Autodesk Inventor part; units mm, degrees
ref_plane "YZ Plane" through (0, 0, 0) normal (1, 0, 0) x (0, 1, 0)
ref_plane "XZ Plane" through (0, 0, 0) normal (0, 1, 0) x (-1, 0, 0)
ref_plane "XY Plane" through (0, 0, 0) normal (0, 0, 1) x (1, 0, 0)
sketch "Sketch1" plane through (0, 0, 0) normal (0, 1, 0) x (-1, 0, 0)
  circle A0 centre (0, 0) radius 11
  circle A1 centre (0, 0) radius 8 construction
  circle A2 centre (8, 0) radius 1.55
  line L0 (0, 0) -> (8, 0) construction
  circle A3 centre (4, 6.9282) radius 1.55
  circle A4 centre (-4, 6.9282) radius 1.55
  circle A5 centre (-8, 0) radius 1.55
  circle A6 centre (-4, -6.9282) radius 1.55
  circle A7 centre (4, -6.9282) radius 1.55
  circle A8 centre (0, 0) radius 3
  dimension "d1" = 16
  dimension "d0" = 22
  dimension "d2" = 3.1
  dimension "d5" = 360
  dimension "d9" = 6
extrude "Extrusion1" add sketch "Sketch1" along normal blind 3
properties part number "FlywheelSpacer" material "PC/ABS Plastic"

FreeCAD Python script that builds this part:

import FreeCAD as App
import Part
import Sketcher

V = App.Vector
Q = App.Units.Quantity

doc = App.newDocument("Part")
body = doc.addObject("PartDesign::Body", "Body")

sketch1 = body.newObject("Sketcher::SketchObject", "Sketch")
sketch1.AttachmentSupport = (doc.getObject("XZ_Plane"), [""])
sketch1.MapMode = "FlatFace"
sketch1.addGeometry([
    Part.Circle(V(0, 0, 0), V(0, 0, 1), 11),
    Part.Circle(V(4, -6.9, 0), V(0, 0, 1), 1.6),
    Part.Circle(V(-4, -6.9, 0), V(0, 0, 1), 1.6),
    Part.Circle(V(8, 0, 0), V(0, 0, 1), 1.6),
    Part.Circle(V(4, 6.9, 0), V(0, 0, 1), 1.6),
    Part.Circle(V(0, 0, 0), V(0, 0, 1), 3),
    Part.Circle(V(-8, 0, 0), V(0, 0, 1), 1.6),
    Part.Circle(V(-4, 6.9, 0), V(0, 0, 1), 1.6),
], False)
sketch1.addConstraint([
    Sketcher.Constraint("Coincident", 0, 3, -1, 1),
    Sketcher.Constraint("Coincident", 5, 3, -1, 1),
    Sketcher.Constraint("Equal", 1, 2),
    Sketcher.Constraint("Equal", 2, 3),
    Sketcher.Constraint("Equal", 3, 4),
    Sketcher.Constraint("Equal", 4, 6),
    Sketcher.Constraint("Equal", 6, 7),
    Sketcher.Constraint("Symmetric", 2, 3, 4, 3, -1, 1),
    Sketcher.Constraint("Symmetric", 3, 3, 6, 3, -1, 1),
    Sketcher.Constraint("Symmetric", 1, 3, 7, 3, -1, 1),
    Sketcher.Constraint("Symmetric", 1, 3, 2, 3, -2),
    Sketcher.Constraint("PointOnObject", 3, 3, -1),
    Sketcher.Constraint("Diameter", 0, Q("22 mm")),
    Sketcher.Constraint("Diameter", 5, Q("6 mm")),
    Sketcher.Constraint("Diameter", 1, Q("3.1 mm")),
    Sketcher.Constraint("DistanceX", -1, 1, 1, 3, Q("4 mm")),
    Sketcher.Constraint("DistanceX", -1, 1, 3, 3, Q("8 mm")),
    Sketcher.Constraint("DistanceY", 1, 3, -1, 1, Q("6.9282 mm")),
])
pad1 = body.newObject("PartDesign::Pad", "Pad")
pad1.Profile = sketch1
pad1.Length = 3
pad1.Reversed = True

doc.recompute()
